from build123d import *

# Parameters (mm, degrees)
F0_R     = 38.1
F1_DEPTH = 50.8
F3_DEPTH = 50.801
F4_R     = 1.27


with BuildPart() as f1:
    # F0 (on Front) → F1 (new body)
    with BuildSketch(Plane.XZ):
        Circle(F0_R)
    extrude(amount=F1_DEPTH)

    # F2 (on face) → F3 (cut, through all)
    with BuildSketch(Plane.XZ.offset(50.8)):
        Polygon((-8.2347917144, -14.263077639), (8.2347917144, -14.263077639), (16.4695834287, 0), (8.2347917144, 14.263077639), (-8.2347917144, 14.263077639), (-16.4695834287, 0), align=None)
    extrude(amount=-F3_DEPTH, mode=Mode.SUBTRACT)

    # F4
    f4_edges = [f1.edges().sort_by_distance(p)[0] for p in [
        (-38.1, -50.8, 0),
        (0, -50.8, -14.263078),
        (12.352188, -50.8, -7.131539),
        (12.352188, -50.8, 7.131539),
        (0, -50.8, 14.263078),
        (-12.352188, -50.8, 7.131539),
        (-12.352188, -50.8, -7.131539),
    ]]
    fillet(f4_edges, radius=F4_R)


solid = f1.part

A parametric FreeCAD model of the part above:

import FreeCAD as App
import Part
import Sketcher

V = App.Vector
Q = App.Units.Quantity


def edges_at(feature, points):
    """Names of the edges that pass closest to the given points."""
    edges = feature.Shape.Edges
    near = lambda p: min(range(len(edges)), key=lambda i: edges[i].distToShape(Part.Vertex(*p))[0])
    return sorted({f"Edge{near(p) + 1}" for p in points})


def add_polygon(sketch, points):
    """Adds a closed chain of lines whose ends are joined by coincident constraints."""
    first, n = sketch.GeometryCount, len(points)
    for a, b in zip(points, points[1:] + points[:1]):
        sketch.addGeometry(Part.LineSegment(App.Vector(*a, 0), App.Vector(*b, 0)), False)
    for i in range(n):
        sketch.addConstraint(Sketcher.Constraint("Coincident", first + i, 2, first + (i + 1) % n, 1))

doc = App.newDocument("Part")
params = doc.addObject("Spreadsheet::Sheet", "Params")
for row, (alias, value) in enumerate([
    ("sketch1_diameter", "3 in"),
    ("pad1_length", "2 in"),
    ("fillet_radius", "0.05 in"),
], start=1):
    params.set(f"A{row}", alias)
    params.set(f"B{row}", "=" + value)
    params.setAlias(f"B{row}", alias)

body = doc.addObject("PartDesign::Body", "Body")

# Sketch on XZ plane
sketch1 = body.newObject("Sketcher::SketchObject", "Sketch")
sketch1.AttachmentSupport = (doc.getObject("XZ_Plane"), [""])
sketch1.MapMode = "FlatFace"
sketch1.addGeometry(Part.Circle(V(0, 0, 0), V(0, 0, 1), 38), False)
sketch1.addConstraint(Sketcher.Constraint("Coincident", 0, 3, -1, 1))
sketch1.addConstraint(Sketcher.Constraint("Diameter", 0, Q("3 in")))
sketch1.setExpression("Constraints[1]", "Params.sketch1_diameter")
pad1 = body.newObject("PartDesign::Pad", "Pad")
pad1.Profile = sketch1
pad1.setExpression("Length", "Params.pad1_length")

# Sketch on XZ plane
sketch2 = body.newObject("Sketcher::SketchObject", "Sketch001")
sketch2.AttachmentSupport = (doc.getObject("XZ_Plane"), [""])
sketch2.MapMode = "FlatFace"
sketch2.AttachmentOffset = App.Placement(V(0, 0, 2 * 25.4), App.Rotation())
add_polygon(sketch2, [(-8, -14), (8, -14), (16, 0), (8, 14), (-8, 14), (-16, 0)])  # lines 0-5
sketch2.addConstraint(Sketcher.Constraint("Horizontal", 0))
sketch2.addConstraint(Sketcher.Constraint("Horizontal", 3))
sketch2.addConstraint(Sketcher.Constraint("Symmetric", 0, 2, 3, 2, -1, 1))
sketch2.addConstraint(Sketcher.Constraint("Symmetric", 1, 2, 4, 2, -1, 1))
sketch2.addConstraint(Sketcher.Constraint("PointOnObject", 1, 2, -1))
sketch2.addConstraint(Sketcher.Constraint("Parallel", 2, 5))
sketch2.addConstraint(Sketcher.Constraint("Vertical", 0, 2, 2, 2))
sketch2.addConstraint(Sketcher.Constraint("Angle", 1, Q("60 deg")))
sketch2.addConstraint(Sketcher.Constraint("DistanceX", 0, 1, 0, 2, 16.469583))
sketch2.addConstraint(Sketcher.Constraint("DistanceX", 0, 2, 1, 2, 8.234792))
pocket1 = body.newObject("PartDesign::Pocket", "Pocket")
pocket1.Profile = sketch2
pocket1.Type = "ThroughAll"
doc.recompute()

fillet = body.newObject("PartDesign::Fillet", "Fillet")
fillet.Base = (pocket1, edges_at(pocket1, [
    (-38.1, -50.8, 0),
    (0, -50.8, -14.263),
    (12.352, -50.8, -7.132),
    (12.352, -50.8, 7.132),
    (0, -50.8, 14.263),
    (-12.352, -50.8, 7.132),
    (-12.352, -50.8, -7.132),
]))
fillet.setExpression("Radius", "Params.fillet_radius")

doc.recompute()
